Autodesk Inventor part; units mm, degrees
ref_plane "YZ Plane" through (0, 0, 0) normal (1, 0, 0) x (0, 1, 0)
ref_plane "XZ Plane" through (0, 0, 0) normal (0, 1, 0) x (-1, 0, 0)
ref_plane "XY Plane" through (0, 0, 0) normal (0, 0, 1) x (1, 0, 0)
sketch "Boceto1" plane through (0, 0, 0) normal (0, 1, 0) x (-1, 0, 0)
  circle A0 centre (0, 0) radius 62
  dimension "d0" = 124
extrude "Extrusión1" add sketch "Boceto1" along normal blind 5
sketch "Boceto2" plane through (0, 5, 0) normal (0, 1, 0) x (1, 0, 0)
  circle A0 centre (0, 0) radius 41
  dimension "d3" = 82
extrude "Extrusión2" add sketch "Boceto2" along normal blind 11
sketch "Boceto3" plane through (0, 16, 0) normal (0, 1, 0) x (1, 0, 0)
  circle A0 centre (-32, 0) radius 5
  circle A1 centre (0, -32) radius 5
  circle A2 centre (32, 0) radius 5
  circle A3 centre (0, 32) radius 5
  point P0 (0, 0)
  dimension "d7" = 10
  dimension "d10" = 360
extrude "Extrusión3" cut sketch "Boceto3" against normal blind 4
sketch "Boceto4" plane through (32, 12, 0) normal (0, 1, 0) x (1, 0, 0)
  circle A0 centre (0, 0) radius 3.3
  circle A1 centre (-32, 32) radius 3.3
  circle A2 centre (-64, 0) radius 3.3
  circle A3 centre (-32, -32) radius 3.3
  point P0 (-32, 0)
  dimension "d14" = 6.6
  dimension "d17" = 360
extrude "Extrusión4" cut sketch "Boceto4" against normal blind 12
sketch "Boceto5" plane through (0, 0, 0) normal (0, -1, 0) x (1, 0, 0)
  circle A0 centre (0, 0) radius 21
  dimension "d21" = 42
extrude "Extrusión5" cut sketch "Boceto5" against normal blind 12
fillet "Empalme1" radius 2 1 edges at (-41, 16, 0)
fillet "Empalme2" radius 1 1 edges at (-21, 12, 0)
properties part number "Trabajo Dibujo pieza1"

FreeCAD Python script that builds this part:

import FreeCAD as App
import Part
import Sketcher
from FreeCAD import Vector


def edges_at(feature, points):
    """Names of the edges that pass closest to the given points."""
    edges = feature.Shape.Edges
    near = lambda p: min(range(len(edges)), key=lambda i: edges[i].distToShape(Part.Vertex(*p))[0])
    return sorted({f"Edge{near(p) + 1}" for p in points})

doc = App.newDocument("Part")
body = doc.addObject("PartDesign::Body", "Body")

# Sketch on XZ plane
sketch1 = doc.addObject("Sketcher::SketchObject", "Sketch")
body.addObject(sketch1)
sketch1.AttachmentSupport = (doc.XZ_Plane, [""])
sketch1.MapMode = "FlatFace"
sketch1.addGeometry(Part.Circle(Vector(0, 0, 0), Vector(0, 0, 1), 62), False)
sketch1.addConstraint([
    Sketcher.Constraint("Coincident", 0, 3, -1, 1),
    Sketcher.Constraint("Diameter", 0, 124.0),
])
pad1 = doc.addObject("PartDesign::Pad", "Pad")
body.addObject(pad1)
pad1.Profile = sketch1
pad1.Length = 5
pad1.Reversed = True

# Sketch on XZ plane
sketch2 = doc.addObject("Sketcher::SketchObject", "Sketch001")
body.addObject(sketch2)
sketch2.AttachmentSupport = (doc.XZ_Plane, [""])
sketch2.MapMode = "FlatFace"
sketch2.AttachmentOffset = App.Placement(Vector(0, 0, -5), App.Rotation())
sketch2.addGeometry(Part.Circle(Vector(0, 0, 0), Vector(0, 0, 1), 41), False)
sketch2.addConstraint([
    Sketcher.Constraint("Coincident", 0, 3, -1, 1),
    Sketcher.Constraint("Diameter", 0, 82.0),
])
pad2 = doc.addObject("PartDesign::Pad", "Pad001")
body.addObject(pad2)
pad2.Profile = sketch2
pad2.Length = 11
pad2.Reversed = True

# Sketch on XZ plane
sketch3 = doc.addObject("Sketcher::SketchObject", "Sketch002")
body.addObject(sketch3)
sketch3.AttachmentSupport = (doc.XZ_Plane, [""])
sketch3.MapMode = "FlatFace"
sketch3.AttachmentOffset = App.Placement(Vector(0, 0, -16), App.Rotation())
sketch3.addGeometry([
    Part.Circle(Vector(-32, 0, 0), Vector(0, 0, 1), 5),
    Part.Circle(Vector(0, 32, 0), Vector(0, 0, 1), 5),
    Part.Circle(Vector(32, 0, 0), Vector(0, 0, 1), 5),
    Part.Circle(Vector(0, -32, 0), Vector(0, 0, 1), 5),
], False)
sketch3.addConstraint([
    Sketcher.Constraint("Equal", 0, 1),
    Sketcher.Constraint("Equal", 1, 2),
    Sketcher.Constraint("Equal", 2, 3),
    Sketcher.Constraint("Symmetric", 0, 3, 2, 3, -1, 1),
    Sketcher.Constraint("Symmetric", 1, 3, 3, 3, -1, 1),
    Sketcher.Constraint("PointOnObject", 0, 3, -1),
    Sketcher.Constraint("PointOnObject", 1, 3, -2),
    Sketcher.Constraint("Diameter", 0, 10.0),
    Sketcher.Constraint("DistanceX", 0, 3, -1, 1, 32.0),
    Sketcher.Constraint("DistanceY", -1, 1, 1, 3, 32.0),
])
pocket1 = doc.addObject("PartDesign::Pocket", "Pocket")
body.addObject(pocket1)
pocket1.Profile = sketch3
pocket1.Length = 4
pocket1.Reversed = True

# Sketch on XZ plane
sketch4 = doc.addObject("Sketcher::SketchObject", "Sketch003")
body.addObject(sketch4)
sketch4.AttachmentSupport = (doc.XZ_Plane, [""])
sketch4.MapMode = "FlatFace"
sketch4.AttachmentOffset = App.Placement(Vector(0, 0, -12), App.Rotation())
sketch4.addGeometry([
    Part.Circle(Vector(32, 0, 0), Vector(0, 0, 1), 3.3),
    Part.Circle(Vector(0, -32, 0), Vector(0, 0, 1), 3.3),
    Part.Circle(Vector(-32, 0, 0), Vector(0, 0, 1), 3.3),
    Part.Circle(Vector(0, 32, 0), Vector(0, 0, 1), 3.3),
], False)
sketch4.addConstraint([
    Sketcher.Constraint("Equal", 0, 1),
    Sketcher.Constraint("Equal", 1, 2),
    Sketcher.Constraint("Equal", 2, 3),
    Sketcher.Constraint("Symmetric", 0, 3, 2, 3, -1, 1),
    Sketcher.Constraint("Symmetric", 1, 3, 3, 3, -1, 1),
    Sketcher.Constraint("PointOnObject", 0, 3, -1),
    Sketcher.Constraint("PointOnObject", 1, 3, -2),
    Sketcher.Constraint("Diameter", 0, 6.6),
    Sketcher.Constraint("DistanceX", -1, 1, 0, 3, 32.0),
    Sketcher.Constraint("DistanceY", 1, 3, -1, 1, 32.0),
])
pocket2 = doc.addObject("PartDesign::Pocket", "Pocket001")
body.addObject(pocket2)
pocket2.Profile = sketch4
pocket2.Length = 12
pocket2.Reversed = True

# Sketch on XZ plane
sketch5 = doc.addObject("Sketcher::SketchObject", "Sketch004")
body.addObject(sketch5)
sketch5.AttachmentSupport = (doc.XZ_Plane, [""])
sketch5.MapMode = "FlatFace"
sketch5.addGeometry(Part.Circle(Vector(0, 0, 0), Vector(0, 0, 1), 21), False)
sketch5.addConstraint([
    Sketcher.Constraint("Coincident", 0, 3, -1, 1),
    Sketcher.Constraint("Diameter", 0, 42.0),
])
pocket3 = doc.addObject("PartDesign::Pocket", "Pocket002")
body.addObject(pocket3)
pocket3.Profile = sketch5
pocket3.Length = 12
doc.recompute()

fillet = doc.addObject("PartDesign::Fillet", "Fillet")
body.addObject(fillet)
fillet.Base = (pocket3, edges_at(pocket3, [(-41, 16, 0)]))
fillet.Radius = 2
doc.recompute()

fillet2 = doc.addObject("PartDesign::Fillet", "Fillet001")
body.addObject(fillet2)
fillet2.Base = (fillet, edges_at(fillet, [(-21, 12, 0)]))
fillet2.Radius = 1

doc.recompute()
